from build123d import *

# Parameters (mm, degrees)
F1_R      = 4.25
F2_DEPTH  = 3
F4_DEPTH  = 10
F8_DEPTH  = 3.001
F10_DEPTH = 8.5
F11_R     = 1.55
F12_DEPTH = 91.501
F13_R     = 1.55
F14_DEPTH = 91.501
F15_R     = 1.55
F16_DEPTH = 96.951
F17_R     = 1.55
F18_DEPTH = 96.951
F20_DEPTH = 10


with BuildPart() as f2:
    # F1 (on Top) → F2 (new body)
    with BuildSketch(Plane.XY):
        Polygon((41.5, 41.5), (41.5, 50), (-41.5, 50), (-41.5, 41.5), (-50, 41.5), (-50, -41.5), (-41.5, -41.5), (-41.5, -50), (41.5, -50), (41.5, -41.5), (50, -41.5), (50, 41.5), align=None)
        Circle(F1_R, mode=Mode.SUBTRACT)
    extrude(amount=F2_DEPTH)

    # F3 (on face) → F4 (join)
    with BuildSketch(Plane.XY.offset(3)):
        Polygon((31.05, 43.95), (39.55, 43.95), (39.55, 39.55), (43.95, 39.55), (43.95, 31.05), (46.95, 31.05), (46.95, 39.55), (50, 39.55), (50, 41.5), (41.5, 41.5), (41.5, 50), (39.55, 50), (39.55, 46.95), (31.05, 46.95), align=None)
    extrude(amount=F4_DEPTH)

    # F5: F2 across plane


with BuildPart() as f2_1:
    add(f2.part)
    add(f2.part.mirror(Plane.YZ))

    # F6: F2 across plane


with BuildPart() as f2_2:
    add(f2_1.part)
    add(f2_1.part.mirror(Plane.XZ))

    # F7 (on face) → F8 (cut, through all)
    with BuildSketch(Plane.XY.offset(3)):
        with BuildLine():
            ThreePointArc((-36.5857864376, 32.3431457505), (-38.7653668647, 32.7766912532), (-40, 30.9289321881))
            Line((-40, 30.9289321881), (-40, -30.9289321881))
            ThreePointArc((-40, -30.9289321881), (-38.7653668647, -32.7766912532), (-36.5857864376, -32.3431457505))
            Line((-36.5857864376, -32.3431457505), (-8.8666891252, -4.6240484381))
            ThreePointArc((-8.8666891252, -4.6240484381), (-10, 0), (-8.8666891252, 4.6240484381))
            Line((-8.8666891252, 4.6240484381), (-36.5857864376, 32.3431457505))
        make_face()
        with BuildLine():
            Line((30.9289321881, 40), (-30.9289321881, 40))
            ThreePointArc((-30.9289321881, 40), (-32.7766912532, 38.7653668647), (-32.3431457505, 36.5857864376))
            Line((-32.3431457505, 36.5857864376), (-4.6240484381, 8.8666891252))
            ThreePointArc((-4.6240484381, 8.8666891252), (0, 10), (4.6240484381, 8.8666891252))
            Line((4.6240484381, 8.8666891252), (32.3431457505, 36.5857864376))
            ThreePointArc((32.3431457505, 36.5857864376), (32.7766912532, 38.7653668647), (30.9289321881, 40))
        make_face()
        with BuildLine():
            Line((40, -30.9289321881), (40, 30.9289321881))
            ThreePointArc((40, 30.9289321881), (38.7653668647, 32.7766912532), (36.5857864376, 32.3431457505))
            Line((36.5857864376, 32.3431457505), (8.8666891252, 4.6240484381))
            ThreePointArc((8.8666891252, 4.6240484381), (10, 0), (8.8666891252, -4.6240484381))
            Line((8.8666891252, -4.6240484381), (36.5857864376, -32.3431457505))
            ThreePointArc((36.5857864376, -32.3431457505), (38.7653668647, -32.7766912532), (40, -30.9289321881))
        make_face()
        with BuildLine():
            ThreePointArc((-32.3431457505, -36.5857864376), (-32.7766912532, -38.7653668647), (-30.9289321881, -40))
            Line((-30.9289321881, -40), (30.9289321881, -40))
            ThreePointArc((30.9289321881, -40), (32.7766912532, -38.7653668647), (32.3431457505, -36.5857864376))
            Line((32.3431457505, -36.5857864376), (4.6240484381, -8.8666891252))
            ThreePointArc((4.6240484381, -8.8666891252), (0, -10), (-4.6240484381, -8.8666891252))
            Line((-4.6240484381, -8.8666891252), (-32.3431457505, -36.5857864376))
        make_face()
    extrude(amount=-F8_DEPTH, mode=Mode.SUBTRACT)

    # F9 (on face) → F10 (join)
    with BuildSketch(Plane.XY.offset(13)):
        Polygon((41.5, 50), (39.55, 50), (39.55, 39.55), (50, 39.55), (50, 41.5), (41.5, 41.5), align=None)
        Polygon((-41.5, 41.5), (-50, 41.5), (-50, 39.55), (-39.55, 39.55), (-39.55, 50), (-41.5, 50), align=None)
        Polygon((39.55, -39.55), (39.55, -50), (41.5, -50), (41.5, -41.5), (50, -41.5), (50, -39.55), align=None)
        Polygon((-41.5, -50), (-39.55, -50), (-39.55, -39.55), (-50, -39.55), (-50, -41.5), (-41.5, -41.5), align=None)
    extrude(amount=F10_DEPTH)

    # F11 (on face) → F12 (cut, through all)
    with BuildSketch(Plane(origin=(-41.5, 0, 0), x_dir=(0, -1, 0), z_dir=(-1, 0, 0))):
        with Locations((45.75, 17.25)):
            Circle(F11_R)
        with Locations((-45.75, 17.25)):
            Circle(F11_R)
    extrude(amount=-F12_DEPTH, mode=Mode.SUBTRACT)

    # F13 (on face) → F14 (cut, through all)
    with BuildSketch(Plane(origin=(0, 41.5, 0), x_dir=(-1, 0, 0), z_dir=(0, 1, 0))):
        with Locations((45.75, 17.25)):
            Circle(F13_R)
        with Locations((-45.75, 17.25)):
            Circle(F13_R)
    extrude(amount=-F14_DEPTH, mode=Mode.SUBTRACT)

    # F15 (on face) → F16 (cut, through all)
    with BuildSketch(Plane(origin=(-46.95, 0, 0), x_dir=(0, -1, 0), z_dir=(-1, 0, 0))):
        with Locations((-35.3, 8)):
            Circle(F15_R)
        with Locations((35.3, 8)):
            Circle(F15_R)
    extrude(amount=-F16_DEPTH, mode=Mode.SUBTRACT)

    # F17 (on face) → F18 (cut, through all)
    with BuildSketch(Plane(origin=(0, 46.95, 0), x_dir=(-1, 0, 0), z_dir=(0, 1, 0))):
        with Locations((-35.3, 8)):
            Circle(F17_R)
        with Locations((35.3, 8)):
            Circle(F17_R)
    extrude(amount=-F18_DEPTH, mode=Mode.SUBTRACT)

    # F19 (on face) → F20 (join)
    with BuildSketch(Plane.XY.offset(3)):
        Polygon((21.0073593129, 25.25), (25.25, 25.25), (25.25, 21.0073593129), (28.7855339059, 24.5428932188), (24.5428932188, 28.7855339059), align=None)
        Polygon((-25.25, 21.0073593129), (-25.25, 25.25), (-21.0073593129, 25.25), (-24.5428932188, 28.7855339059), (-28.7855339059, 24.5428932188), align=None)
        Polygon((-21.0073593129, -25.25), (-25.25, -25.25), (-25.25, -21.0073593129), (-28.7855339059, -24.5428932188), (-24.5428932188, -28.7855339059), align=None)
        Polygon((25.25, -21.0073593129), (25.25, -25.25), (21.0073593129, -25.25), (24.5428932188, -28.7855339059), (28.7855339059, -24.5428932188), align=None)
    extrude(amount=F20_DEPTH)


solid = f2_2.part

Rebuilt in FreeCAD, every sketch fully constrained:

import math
import FreeCAD as App
import Part
import Sketcher

doc = App.newDocument("Part")
body = doc.addObject("PartDesign::Body", "Body")

sketch1 = doc.addObject("Sketcher::SketchObject", "Sketch")
body.addObject(sketch1)
sketch1.AttachmentSupport = (doc.XY_Plane, [""])
sketch1.MapMode = "FlatFace"
sketch1.addGeometry(Part.LineSegment(App.Vector(41.5, 41.5, 0), App.Vector(41.5, 50, 0)), False)
sketch1.addGeometry(Part.LineSegment(App.Vector(41.5, 50, 0), App.Vector(-41.5, 50, 0)), False)
sketch1.addGeometry(Part.LineSegment(App.Vector(-41.5, 50, 0), App.Vector(-41.5, 41.5, 0)), False)
sketch1.addGeometry(Part.LineSegment(App.Vector(-41.5, 41.5, 0), App.Vector(-50, 41.5, 0)), False)
sketch1.addGeometry(Part.LineSegment(App.Vector(-50, 41.5, 0), App.Vector(-50, -41.5, 0)), False)
sketch1.addGeometry(Part.LineSegment(App.Vector(-50, -41.5, 0), App.Vector(-41.5, -41.5, 0)), False)
sketch1.addGeometry(Part.LineSegment(App.Vector(-41.5, -41.5, 0), App.Vector(-41.5, -50, 0)), False)
sketch1.addGeometry(Part.LineSegment(App.Vector(-41.5, -50, 0), App.Vector(41.5, -50, 0)), False)
sketch1.addGeometry(Part.LineSegment(App.Vector(41.5, -50, 0), App.Vector(41.5, -41.5, 0)), False)
sketch1.addGeometry(Part.LineSegment(App.Vector(41.5, -41.5, 0), App.Vector(50, -41.5, 0)), False)
sketch1.addGeometry(Part.LineSegment(App.Vector(50, -41.5, 0), App.Vector(50, 41.5, 0)), False)
sketch1.addGeometry(Part.LineSegment(App.Vector(50, 41.5, 0), App.Vector(41.5, 41.5, 0)), False)
sketch1.addGeometry(Part.Circle(App.Vector(0, 0, 0), App.Vector(0, 0, 1), 4.25), False)
sketch1.addConstraint(Sketcher.Constraint("Coincident", 0, 2, 1, 1))
sketch1.addConstraint(Sketcher.Constraint("Coincident", 1, 2, 2, 1))
sketch1.addConstraint(Sketcher.Constraint("Coincident", 2, 2, 3, 1))
sketch1.addConstraint(Sketcher.Constraint("Coincident", 3, 2, 4, 1))
sketch1.addConstraint(Sketcher.Constraint("Coincident", 4, 2, 5, 1))
sketch1.addConstraint(Sketcher.Constraint("Coincident", 5, 2, 6, 1))
sketch1.addConstraint(Sketcher.Constraint("Coincident", 6, 2, 7, 1))
sketch1.addConstraint(Sketcher.Constraint("Coincident", 7, 2, 8, 1))
sketch1.addConstraint(Sketcher.Constraint("Coincident", 8, 2, 9, 1))
sketch1.addConstraint(Sketcher.Constraint("Coincident", 9, 2, 10, 1))
sketch1.addConstraint(Sketcher.Constraint("Coincident", 10, 2, 11, 1))
sketch1.addConstraint(Sketcher.Constraint("Coincident", 11, 2, 0, 1))
sketch1.addConstraint(Sketcher.Constraint("Vertical", 0))
sketch1.addConstraint(Sketcher.Constraint("Horizontal", 1))
sketch1.addConstraint(Sketcher.Constraint("Vertical", 2))
sketch1.addConstraint(Sketcher.Constraint("Horizontal", 3))
sketch1.addConstraint(Sketcher.Constraint("Vertical", 4))
sketch1.addConstraint(Sketcher.Constraint("Horizontal", 5))
sketch1.addConstraint(Sketcher.Constraint("Vertical", 6))
sketch1.addConstraint(Sketcher.Constraint("Horizontal", 7))
sketch1.addConstraint(Sketcher.Constraint("Vertical", 8))
sketch1.addConstraint(Sketcher.Constraint("Horizontal", 9))
sketch1.addConstraint(Sketcher.Constraint("Vertical", 10))
sketch1.addConstraint(Sketcher.Constraint("Horizontal", 11))
sketch1.addConstraint(Sketcher.Constraint("Coincident", 12, 3, -1, 1))
sketch1.addConstraint(Sketcher.Constraint("Symmetric", 0, 2, 6, 2, -1, 1))
sketch1.addConstraint(Sketcher.Constraint("Symmetric", 2, 2, 8, 2, -1, 1))
sketch1.addConstraint(Sketcher.Constraint("Symmetric", 4, 2, 10, 2, -1, 1))
sketch1.addConstraint(Sketcher.Constraint("Symmetric", 5, 2, 8, 2, -2))
sketch1.addConstraint(Sketcher.Constraint("Equal", 11, 0))
sketch1.addConstraint(Sketcher.Constraint("Equal", 7, 4))
sketch1.addConstraint(Sketcher.Constraint("Diameter", 12, 8.5))
sketch1.addConstraint(Sketcher.Constraint("DistanceX", 1, 2, 1, 1, 83.0))
sketch1.addConstraint(Sketcher.Constraint("DistanceX", 3, 2, 3, 1, 8.5))
pad1 = doc.addObject("PartDesign::Pad", "Pad")
body.addObject(pad1)
pad1.Profile = sketch1
pad1.Length = 3

sketch2 = doc.addObject("Sketcher::SketchObject", "Sketch001")
body.addObject(sketch2)
sketch2.AttachmentSupport = (doc.XY_Plane, [""])
sketch2.MapMode = "FlatFace"
sketch2.AttachmentOffset = App.Placement(App.Vector(0, 0, 3), App.Rotation())
sketch2.addGeometry(Part.LineSegment(App.Vector(31.05, 43.95, 0), App.Vector(39.55, 43.95, 0)), False)
sketch2.addGeometry(Part.LineSegment(App.Vector(39.55, 43.95, 0), App.Vector(39.55, 39.55, 0)), False)
sketch2.addGeometry(Part.LineSegment(App.Vector(39.55, 39.55, 0), App.Vector(43.95, 39.55, 0)), False)
sketch2.addGeometry(Part.LineSegment(App.Vector(43.95, 39.55, 0), App.Vector(43.95, 31.05, 0)), False)
sketch2.addGeometry(Part.LineSegment(App.Vector(43.95, 31.05, 0), App.Vector(46.95, 31.05, 0)), False)
sketch2.addGeometry(Part.LineSegment(App.Vector(46.95, 31.05, 0), App.Vector(46.95, 39.55, 0)), False)
sketch2.addGeometry(Part.LineSegment(App.Vector(46.95, 39.55, 0), App.Vector(50, 39.55, 0)), False)
sketch2.addGeometry(Part.LineSegment(App.Vector(50, 39.55, 0), App.Vector(50, 41.5, 0)), False)
sketch2.addGeometry(Part.LineSegment(App.Vector(50, 41.5, 0), App.Vector(41.5, 41.5, 0)), False)
sketch2.addGeometry(Part.LineSegment(App.Vector(41.5, 41.5, 0), App.Vector(41.5, 50, 0)), False)
sketch2.addGeometry(Part.LineSegment(App.Vector(41.5, 50, 0), App.Vector(39.55, 50, 0)), False)
sketch2.addGeometry(Part.LineSegment(App.Vector(39.55, 50, 0), App.Vector(39.55, 46.95, 0)), False)
sketch2.addGeometry(Part.LineSegment(App.Vector(39.55, 46.95, 0), App.Vector(31.05, 46.95, 0)), False)
sketch2.addGeometry(Part.LineSegment(App.Vector(31.05, 46.95, 0), App.Vector(31.05, 43.95, 0)), False)
sketch2.addConstraint(Sketcher.Constraint("Coincident", 0, 2, 1, 1))
sketch2.addConstraint(Sketcher.Constraint("Coincident", 1, 2, 2, 1))
sketch2.addConstraint(Sketcher.Constraint("Coincident", 2, 2, 3, 1))
sketch2.addConstraint(Sketcher.Constraint("Coincident", 3, 2, 4, 1))
sketch2.addConstraint(Sketcher.Constraint("Coincident", 4, 2, 5, 1))
sketch2.addConstraint(Sketcher.Constraint("Coincident", 5, 2, 6, 1))
sketch2.addConstraint(Sketcher.Constraint("Coincident", 6, 2, 7, 1))
sketch2.addConstraint(Sketcher.Constraint("Coincident", 7, 2, 8, 1))
sketch2.addConstraint(Sketcher.Constraint("Coincident", 8, 2, 9, 1))
sketch2.addConstraint(Sketcher.Constraint("Coincident", 9, 2, 10, 1))
sketch2.addConstraint(Sketcher.Constraint("Coincident", 10, 2, 11, 1))
sketch2.addConstraint(Sketcher.Constraint("Coincident", 11, 2, 12, 1))
sketch2.addConstraint(Sketcher.Constraint("Coincident", 12, 2, 13, 1))
sketch2.addConstraint(Sketcher.Constraint("Coincident", 13, 2, 0, 1))
sketch2.addConstraint(Sketcher.Constraint("Horizontal", 0))
sketch2.addConstraint(Sketcher.Constraint("Vertical", 1))
sketch2.addConstraint(Sketcher.Constraint("Horizontal", 2))
sketch2.addConstraint(Sketcher.Constraint("Vertical", 3))
sketch2.addConstraint(Sketcher.Constraint("Horizontal", 4))
sketch2.addConstraint(Sketcher.Constraint("Vertical", 5))
sketch2.addConstraint(Sketcher.Constraint("Horizontal", 6))
sketch2.addConstraint(Sketcher.Constraint("Vertical", 7))
sketch2.addConstraint(Sketcher.Constraint("Horizontal", 8))
sketch2.addConstraint(Sketcher.Constraint("Vertical", 9))
sketch2.addConstraint(Sketcher.Constraint("Horizontal", 10))
sketch2.addConstraint(Sketcher.Constraint("Vertical", 11))
sketch2.addConstraint(Sketcher.Constraint("Horizontal", 12))
sketch2.addConstraint(Sketcher.Constraint("Vertical", 13))
sketch2.addConstraint(Sketcher.Constraint("Horizontal", 2, 2, 5, 2))
sketch2.addConstraint(Sketcher.Constraint("Vertical", 1, 2, 10, 2))
sketch2.addConstraint(Sketcher.Constraint("Equal", 0, 8))
sketch2.addConstraint(Sketcher.Constraint("Equal", 2, 1))
sketch2.addConstraint(Sketcher.Constraint("Equal", 12, 3))
sketch2.addConstraint(Sketcher.Constraint("Equal", 10, 7))
sketch2.addConstraint(Sketcher.Constraint("Equal", 5, 9))
sketch2.addConstraint(Sketcher.Constraint("Equal", 6, 11))
sketch2.addConstraint(Sketcher.Constraint("DistanceX", 4, 1, 4, 2, 3.0))
sketch2.addConstraint(Sketcher.Constraint("DistanceX", 0, 1, 0, 2, 8.5))
sketch2.addConstraint(Sketcher.Constraint("DistanceX", 2, 1, 2, 2, 4.4))
sketch2.addConstraint(Sketcher.Constraint("DistanceX", -1, 1, 6, 2, 50.0))
sketch2.addConstraint(Sketcher.Constraint("DistanceY", -1, 1, 9, 2, 50.0))
sketch2.addConstraint(Sketcher.Constraint("DistanceX", 6, 1, 6, 2, 3.05))
pad2 = doc.addObject("PartDesign::Pad", "Pad001")
body.addObject(pad2)
pad2.Profile = sketch2
pad2.Length = 10
body2 = doc.addObject("PartDesign::Body", "Body001")
doc.recompute()

body2.BaseFeature = body
doc.recompute()

mirroring = doc.addObject("Part::Mirroring", "Mirroring")
mirroring.Source = body
mirroring.Base = App.Vector(0, 0, 0)
mirroring.Normal = App.Vector(1, 0, 0)
body3 = doc.addObject("PartDesign::Body", "Body002")
body3.BaseFeature = mirroring
boolean = doc.addObject("PartDesign::Boolean", "Boolean")
body2.addObject(boolean)
boolean.Type = "Fuse"
boolean.addObjects([body3])
doc.recompute()
body4 = doc.addObject("PartDesign::Body", "Body003")
doc.recompute()

body4.BaseFeature = body2
doc.recompute()

mirroring2 = doc.addObject("Part::Mirroring", "Mirroring001")
mirroring2.Source = body2
mirroring2.Base = App.Vector(0, 0, 0)
mirroring2.Normal = App.Vector(0, -1, 0)
body5 = doc.addObject("PartDesign::Body", "Body004")
body5.BaseFeature = mirroring2
boolean2 = doc.addObject("PartDesign::Boolean", "Boolean001")
body4.addObject(boolean2)
boolean2.Type = "Fuse"
boolean2.addObjects([body5])
doc.recompute()

sketch3 = doc.addObject("Sketcher::SketchObject", "Sketch002")
body4.addObject(sketch3)
sketch3.AttachmentSupport = (doc.getObject("XY_Plane003"), [""])
sketch3.MapMode = "FlatFace"
sketch3.AttachmentOffset = App.Placement(App.Vector(0, 0, 3), App.Rotation())
sketch3.addGeometry(Part.ArcOfCircle(Part.Circle(App.Vector(-38, 30.928932, 0), App.Vector(0, 0, 1), 2), math.radians(45), math.radians(180)), False)
sketch3.addGeometry(Part.LineSegment(App.Vector(-40, 30.928932, 0), App.Vector(-40, -30.928932, 0)), False)
sketch3.addGeometry(Part.ArcOfCircle(Part.Circle(App.Vector(-38, -30.928932, 0), App.Vector(0, 0, 1), 2), math.radians(180), math.radians(315)), False)
sketch3.addGeometry(Part.LineSegment(App.Vector(-36.585786, -32.343146, 0), App.Vector(-8.866689, -4.624048, 0)), False)
sketch3.addGeometry(Part.ArcOfCircle(Part.Circle(App.Vector(0, 0, 0), App.Vector(0, 0, 1), 10), math.radians(152.457603), math.radians(207.542397)), False)
sketch3.addGeometry(Part.LineSegment(App.Vector(-8.866689, 4.624048, 0), App.Vector(-36.585786, 32.343146, 0)), False)
sketch3.addGeometry(Part.LineSegment(App.Vector(30.928932, 40, 0), App.Vector(-30.928932, 40, 0)), False)
sketch3.addGeometry(Part.ArcOfCircle(Part.Circle(App.Vector(-30.928932, 38, 0), App.Vector(0, 0, 1), 2), math.radians(90), math.radians(225)), False)
sketch3.addGeometry(Part.LineSegment(App.Vector(-32.343146, 36.585786, 0), App.Vector(-4.624048, 8.866689, 0)), False)
sketch3.addGeometry(Part.ArcOfCircle(Part.Circle(App.Vector(0, 0, 0), App.Vector(0, 0, 1), 10), math.radians(62.457603), math.radians(117.542397)), False)
sketch3.addGeometry(Part.LineSegment(App.Vector(4.624048, 8.866689, 0), App.Vector(32.343146, 36.585786, 0)), False)
sketch3.addGeometry(Part.ArcOfCircle(Part.Circle(App.Vector(30.928932, 38, 0), App.Vector(0, 0, 1), 2), math.radians(-45), math.radians(90)), False)
sketch3.addGeometry(Part.LineSegment(App.Vector(40, -30.928932, 0), App.Vector(40, 30.928932, 0)), False)
sketch3.addGeometry(Part.ArcOfCircle(Part.Circle(App.Vector(38, 30.928932, 0), App.Vector(0, 0, 1), 2), math.radians(0), math.radians(135)), False)
sketch3.addGeometry(Part.LineSegment(App.Vector(36.585786, 32.343146, 0), App.Vector(8.866689, 4.624048, 0)), False)
sketch3.addGeometry(Part.ArcOfCircle(Part.Circle(App.Vector(0, 0, 0), App.Vector(0, 0, 1), 10), math.radians(-27.542397), math.radians(27.542397)), False)
sketch3.addGeometry(Part.LineSegment(App.Vector(8.866689, -4.624048, 0), App.Vector(36.585786, -32.343146, 0)), False)
sketch3.addGeometry(Part.ArcOfCircle(Part.Circle(App.Vector(38, -30.928932, 0), App.Vector(0, 0, 1), 2), math.radians(-135), math.radians(0)), False)
sketch3.addGeometry(Part.ArcOfCircle(Part.Circle(App.Vector(-30.928932, -38, 0), App.Vector(0, 0, 1), 2), math.radians(135), math.radians(270)), False)
sketch3.addGeometry(Part.LineSegment(App.Vector(-30.928932, -40, 0), App.Vector(30.928932, -40, 0)), False)
sketch3.addGeometry(Part.ArcOfCircle(Part.Circle(App.Vector(30.928932, -38, 0), App.Vector(0, 0, 1), 2), math.radians(-90), math.radians(45)), False)
sketch3.addGeometry(Part.LineSegment(App.Vector(32.343146, -36.585786, 0), App.Vector(4.624048, -8.866689, 0)), False)
sketch3.addGeometry(Part.ArcOfCircle(Part.Circle(App.Vector(0, 0, 0), App.Vector(0, 0, 1), 10), math.radians(-117.542397), math.radians(-62.457603)), False)
sketch3.addGeometry(Part.LineSegment(App.Vector(-4.624048, -8.866689, 0), App.Vector(-32.343146, -36.585786, 0)), False)
sketch3.addConstraint(Sketcher.Constraint("Tangent", 0, 2, 1, 1))
sketch3.addConstraint(Sketcher.Constraint("Tangent", 1, 2, 2, 1))
sketch3.addConstraint(Sketcher.Constraint("Tangent", 2, 2, 3, 1))
sketch3.addConstraint(Sketcher.Constraint("Coincident", 3, 2, 4, 2))
sketch3.addConstraint(Sketcher.Constraint("Coincident", 4, 1, 5, 1))
sketch3.addConstraint(Sketcher.Constraint("Tangent", 5, 2, 0, 1))
sketch3.addConstraint(Sketcher.Constraint("Tangent", 6, 2, 7, 1))
sketch3.addConstraint(Sketcher.Constraint("Tangent", 7, 2, 8, 1))
sketch3.addConstraint(Sketcher.Constraint("Coincident", 8, 2, 9, 2))
sketch3.addConstraint(Sketcher.Constraint("Coincident", 9, 1, 10, 1))
sketch3.addConstraint(Sketcher.Constraint("Tangent", 10, 2, 11, 1))
sketch3.addConstraint(Sketcher.Constraint("Tangent", 11, 2, 6, 1))
sketch3.addConstraint(Sketcher.Constraint("Tangent", 12, 2, 13, 1))
sketch3.addConstraint(Sketcher.Constraint("Tangent", 13, 2, 14, 1))
sketch3.addConstraint(Sketcher.Constraint("Coincident", 14, 2, 15, 2))
sketch3.addConstraint(Sketcher.Constraint("Coincident", 15, 1, 16, 1))
sketch3.addConstraint(Sketcher.Constraint("Tangent", 16, 2, 17, 1))
sketch3.addConstraint(Sketcher.Constraint("Tangent", 17, 2, 12, 1))
sketch3.addConstraint(Sketcher.Constraint("Tangent", 18, 2, 19, 1))
sketch3.addConstraint(Sketcher.Constraint("Tangent", 19, 2, 20, 1))
sketch3.addConstraint(Sketcher.Constraint("Tangent", 20, 2, 21, 1))
sketch3.addConstraint(Sketcher.Constraint("Coincident", 21, 2, 22, 2))
sketch3.addConstraint(Sketcher.Constraint("Coincident", 22, 1, 23, 1))
sketch3.addConstraint(Sketcher.Constraint("Tangent", 23, 2, 18, 1))
sketch3.addConstraint(Sketcher.Constraint("Vertical", 1))
sketch3.addConstraint(Sketcher.Constraint("Horizontal", 6))
sketch3.addConstraint(Sketcher.Constraint("Vertical", 12))
sketch3.addConstraint(Sketcher.Constraint("Horizontal", 19))
sketch3.addConstraint(Sketcher.Constraint("Coincident", 4, 3, -1, 1))
sketch3.addConstraint(Sketcher.Constraint("Coincident", 9, 3, -1, 1))
sketch3.addConstraint(Sketcher.Constraint("Coincident", 15, 3, -1, 1))
sketch3.addConstraint(Sketcher.Constraint("Coincident", 22, 3, -1, 1))
sketch3.addConstraint(Sketcher.Constraint("Equal", 0, 2))
sketch3.addConstraint(Sketcher.Constraint("Equal", 2, 7))
sketch3.addConstraint(Sketcher.Constraint("Equal", 4, 9))
sketch3.addConstraint(Sketcher.Constraint("Equal", 7, 11))
sketch3.addConstraint(Sketcher.Constraint("Equal", 11, 13))
sketch3.addConstraint(Sketcher.Constraint("Equal", 9, 15))
sketch3.addConstraint(Sketcher.Constraint("Equal", 13, 17))
sketch3.addConstraint(Sketcher.Constraint("Equal", 17, 18))
sketch3.addConstraint(Sketcher.Constraint("Equal", 18, 20))
sketch3.addConstraint(Sketcher.Constraint("Equal", 15, 22))
sketch3.addConstraint(Sketcher.Constraint("Symmetric", 2, 3, 13, 3, -1, 1))
sketch3.addConstraint(Sketcher.Constraint("Symmetric", 11, 3, 18, 3, -1, 1))
sketch3.addConstraint(Sketcher.Constraint("Symmetric", 5, 2, 16, 2, -1, 1))
sketch3.addConstraint(Sketcher.Constraint("Symmetric", 7, 2, 20, 2, -1, 1))
sketch3.addConstraint(Sketcher.Constraint("Symmetric", 7, 2, 10, 2, -2))
sketch3.addConstraint(Sketcher.Constraint("Symmetric", 5, 2, 13, 2, -2))
sketch3.addConstraint(Sketcher.Constraint("Perpendicular", 3, 5))
sketch3.addConstraint(Sketcher.Constraint("Parallel", 5, 8))
sketch3.addConstraint(Sketcher.Constraint("Perpendicular", 8, 10))
sketch3.addConstraint(Sketcher.Constraint("Perpendicular", 21, 23))
sketch3.addConstraint(Sketcher.Constraint("Equal", 19, 1))
sketch3.addConstraint(Sketcher.Constraint("Equal", 5, 8))
sketch3.addConstraint(Sketcher.Constraint("Radius", 0, 2.0))
sketch3.addConstraint(Sketcher.Constraint("Radius", 4, 10.0))
sketch3.addConstraint(Sketcher.Constraint("DistanceX", 0, 3, -1, 1, 38.0))
sketch3.addConstraint(Sketcher.Constraint("DistanceX", 6, 2, 6, 1, 61.857864))
pocket1 = doc.addObject("PartDesign::Pocket", "Pocket")
body4.addObject(pocket1)
pocket1.Profile = sketch3
pocket1.Type = "ThroughAll"

sketch4 = doc.addObject("Sketcher::SketchObject", "Sketch003")
body4.addObject(sketch4)
sketch4.AttachmentSupport = (doc.getObject("XY_Plane003"), [""])
sketch4.MapMode = "FlatFace"
sketch4.AttachmentOffset = App.Placement(App.Vector(0, 0, 13), App.Rotation())
sketch4.addGeometry(Part.LineSegment(App.Vector(41.5, 50, 0), App.Vector(39.55, 50, 0)), False)
sketch4.addGeometry(Part.LineSegment(App.Vector(39.55, 50, 0), App.Vector(39.55, 39.55, 0)), False)
sketch4.addGeometry(Part.LineSegment(App.Vector(39.55, 39.55, 0), App.Vector(50, 39.55, 0)), False)
sketch4.addGeometry(Part.LineSegment(App.Vector(50, 39.55, 0), App.Vector(50, 41.5, 0)), False)
sketch4.addGeometry(Part.LineSegment(App.Vector(50, 41.5, 0), App.Vector(41.5, 41.5, 0)), False)
sketch4.addGeometry(Part.LineSegment(App.Vector(41.5, 41.5, 0), App.Vector(41.5, 50, 0)), False)
sketch4.addGeometry(Part.LineSegment(App.Vector(-41.5, 41.5, 0), App.Vector(-50, 41.5, 0)), False)
sketch4.addGeometry(Part.LineSegment(App.Vector(-50, 41.5, 0), App.Vector(-50, 39.55, 0)), False)
sketch4.addGeometry(Part.LineSegment(App.Vector(-50, 39.55, 0), App.Vector(-39.55, 39.55, 0)), False)
sketch4.addGeometry(Part.LineSegment(App.Vector(-39.55, 39.55, 0), App.Vector(-39.55, 50, 0)), False)
sketch4.addGeometry(Part.LineSegment(App.Vector(-39.55, 50, 0), App.Vector(-41.5, 50, 0)), False)
sketch4.addGeometry(Part.LineSegment(App.Vector(-41.5, 50, 0), App.Vector(-41.5, 41.5, 0)), False)
sketch4.addGeometry(Part.LineSegment(App.Vector(39.55, -39.55, 0), App.Vector(39.55, -50, 0)), False)
sketch4.addGeometry(Part.LineSegment(App.Vector(39.55, -50, 0), App.Vector(41.5, -50, 0)), False)
sketch4.addGeometry(Part.LineSegment(App.Vector(41.5, -50, 0), App.Vector(41.5, -41.5, 0)), False)
sketch4.addGeometry(Part.LineSegment(App.Vector(41.5, -41.5, 0), App.Vector(50, -41.5, 0)), False)
sketch4.addGeometry(Part.LineSegment(App.Vector(50, -41.5, 0), App.Vector(50, -39.55, 0)), False)
sketch4.addGeometry(Part.LineSegment(App.Vector(50, -39.55, 0), App.Vector(39.55, -39.55, 0)), False)
sketch4.addGeometry(Part.LineSegment(App.Vector(-41.5, -50, 0), App.Vector(-39.55, -50, 0)), False)
sketch4.addGeometry(Part.LineSegment(App.Vector(-39.55, -50, 0), App.Vector(-39.55, -39.55, 0)), False)
sketch4.addGeometry(Part.LineSegment(App.Vector(-39.55, -39.55, 0), App.Vector(-50, -39.55, 0)), False)
sketch4.addGeometry(Part.LineSegment(App.Vector(-50, -39.55, 0), App.Vector(-50, -41.5, 0)), False)
sketch4.addGeometry(Part.LineSegment(App.Vector(-50, -41.5, 0), App.Vector(-41.5, -41.5, 0)), False)
sketch4.addGeometry(Part.LineSegment(App.Vector(-41.5, -41.5, 0), App.Vector(-41.5, -50, 0)), False)
sketch4.addConstraint(Sketcher.Constraint("Coincident", 0, 2, 1, 1))
sketch4.addConstraint(Sketcher.Constraint("Coincident", 1, 2, 2, 1))
sketch4.addConstraint(Sketcher.Constraint("Coincident", 2, 2, 3, 1))
sketch4.addConstraint(Sketcher.Constraint("Coincident", 3, 2, 4, 1))
sketch4.addConstraint(Sketcher.Constraint("Coincident", 4, 2, 5, 1))
sketch4.addConstraint(Sketcher.Constraint("Coincident", 5, 2, 0, 1))
sketch4.addConstraint(Sketcher.Constraint("Coincident", 6, 2, 7, 1))
sketch4.addConstraint(Sketcher.Constraint("Coincident", 7, 2, 8, 1))
sketch4.addConstraint(Sketcher.Constraint("Coincident", 8, 2, 9, 1))
sketch4.addConstraint(Sketcher.Constraint("Coincident", 9, 2, 10, 1))
sketch4.addConstraint(Sketcher.Constraint("Coincident", 10, 2, 11, 1))
sketch4.addConstraint(Sketcher.Constraint("Coincident", 11, 2, 6, 1))
sketch4.addConstraint(Sketcher.Constraint("Coincident", 12, 2, 13, 1))
sketch4.addConstraint(Sketcher.Constraint("Coincident", 13, 2, 14, 1))
sketch4.addConstraint(Sketcher.Constraint("Coincident", 14, 2, 15, 1))
sketch4.addConstraint(Sketcher.Constraint("Coincident", 15, 2, 16, 1))
sketch4.addConstraint(Sketcher.Constraint("Coincident", 16, 2, 17, 1))
sketch4.addConstraint(Sketcher.Constraint("Coincident", 17, 2, 12, 1))
sketch4.addConstraint(Sketcher.Constraint("Coincident", 18, 2, 19, 1))
sketch4.addConstraint(Sketcher.Constraint("Coincident", 19, 2, 20, 1))
sketch4.addConstraint(Sketcher.Constraint("Coincident", 20, 2, 21, 1))
sketch4.addConstraint(Sketcher.Constraint("Coincident", 21, 2, 22, 1))
sketch4.addConstraint(Sketcher.Constraint("Coincident", 22, 2, 23, 1))
sketch4.addConstraint(Sketcher.Constraint("Coincident", 23, 2, 18, 1))
sketch4.addConstraint(Sketcher.Constraint("Horizontal", 0))
sketch4.addConstraint(Sketcher.Constraint("Vertical", 1))
sketch4.addConstraint(Sketcher.Constraint("Horizontal", 2))
sketch4.addConstraint(Sketcher.Constraint("Vertical", 3))
sketch4.addConstraint(Sketcher.Constraint("Horizontal", 4))
sketch4.addConstraint(Sketcher.Constraint("Vertical", 5))
sketch4.addConstraint(Sketcher.Constraint("Horizontal", 6))
sketch4.addConstraint(Sketcher.Constraint("Vertical", 7))
sketch4.addConstraint(Sketcher.Constraint("Horizontal", 8))
sketch4.addConstraint(Sketcher.Constraint("Vertical", 9))
sketch4.addConstraint(Sketcher.Constraint("Horizontal", 10))
sketch4.addConstraint(Sketcher.Constraint("Vertical", 11))
sketch4.addConstraint(Sketcher.Constraint("Vertical", 12))
sketch4.addConstraint(Sketcher.Constraint("Horizontal", 13))
sketch4.addConstraint(Sketcher.Constraint("Vertical", 14))
sketch4.addConstraint(Sketcher.Constraint("Horizontal", 15))
sketch4.addConstraint(Sketcher.Constraint("Vertical", 16))
sketch4.addConstraint(Sketcher.Constraint("Horizontal", 17))
sketch4.addConstraint(Sketcher.Constraint("Horizontal", 18))
sketch4.addConstraint(Sketcher.Constraint("Vertical", 19))
sketch4.addConstraint(Sketcher.Constraint("Horizontal", 20))
sketch4.addConstraint(Sketcher.Constraint("Vertical", 21))
sketch4.addConstraint(Sketcher.Constraint("Horizontal", 22))
sketch4.addConstraint(Sketcher.Constraint("Vertical", 23))
sketch4.addConstraint(Sketcher.Constraint("Symmetric", 9, 2, 12, 2, -1, 1))
sketch4.addConstraint(Sketcher.Constraint("Symmetric", 11, 2, 14, 2, -1, 1))
sketch4.addConstraint(Sketcher.Constraint("Symmetric", 7, 2, 16, 2, -1, 1))
sketch4.addConstraint(Sketcher.Constraint("Symmetric", 0, 2, 18, 2, -1, 1))
sketch4.addConstraint(Sketcher.Constraint("Symmetric", 2, 2, 20, 2, -1, 1))
sketch4.addConstraint(Sketcher.Constraint("Symmetric", 4, 2, 22, 2, -1, 1))
sketch4.addConstraint(Sketcher.Constraint("Symmetric", 3, 2, 6, 2, -2))
sketch4.addConstraint(Sketcher.Constraint("Symmetric", 1, 2, 8, 2, -2))
sketch4.addConstraint(Sketcher.Constraint("Symmetric", 5, 2, 10, 2, -2))
sketch4.addConstraint(Sketcher.Constraint("Equal", 20, 1))
sketch4.addConstraint(Sketcher.Constraint("Equal", 18, 3))
sketch4.addConstraint(Sketcher.Constraint("DistanceX", 4, 2, 4, 1, 8.5))
sketch4.addConstraint(Sketcher.Constraint("DistanceY", -1, 1, 0, 2, 50.0))
sketch4.addConstraint(Sketcher.Constraint("DistanceX", -1, 1, 2, 2, 50.0))
sketch4.addConstraint(Sketcher.Constraint("DistanceX", 0, 2, 0, 1, 1.95))
pad3 = doc.addObject("PartDesign::Pad", "Pad002")
body4.addObject(pad3)
pad3.Profile = sketch4
pad3.Length = 8.5

sketch5 = doc.addObject("Sketcher::SketchObject", "Sketch004")
body4.addObject(sketch5)
sketch5.AttachmentSupport = (doc.getObject("YZ_Plane003"), [""])
sketch5.MapMode = "FlatFace"
sketch5.AttachmentOffset = App.Placement(App.Vector(0, 0, -41.5), App.Rotation())
sketch5.addGeometry(Part.Circle(App.Vector(-45.75, 17.25, 0), App.Vector(0, 0, 1), 1.55), False)
sketch5.addGeometry(Part.Circle(App.Vector(45.75, 17.25, 0), App.Vector(0, 0, 1), 1.55), False)
sketch5.addConstraint(Sketcher.Constraint("Equal", 0, 1))
sketch5.addConstraint(Sketcher.Constraint("Symmetric", 0, 3, 1, 3, -2))
sketch5.addConstraint(Sketcher.Constraint("Diameter", 0, 3.1))
sketch5.addConstraint(Sketcher.Constraint("DistanceX", 0, 3, 1, 3, 91.5))
sketch5.addConstraint(Sketcher.Constraint("DistanceY", -1, 1, 0, 3, 17.25))
pocket2 = doc.addObject("PartDesign::Pocket", "Pocket001")
body4.addObject(pocket2)
pocket2.Profile = sketch5
pocket2.Type = "ThroughAll"
pocket2.Reversed = True

sketch6 = doc.addObject("Sketcher::SketchObject", "Sketch005")
body4.addObject(sketch6)
sketch6.AttachmentSupport = (doc.getObject("XZ_Plane003"), [""])
sketch6.MapMode = "FlatFace"
sketch6.AttachmentOffset = App.Placement(App.Vector(0, 0, -41.5), App.Rotation())
sketch6.addGeometry(Part.Circle(App.Vector(-45.75, 17.25, 0), App.Vector(0, 0, 1), 1.55), False)
sketch6.addGeometry(Part.Circle(App.Vector(45.75, 17.25, 0), App.Vector(0, 0, 1), 1.55), False)
sketch6.addConstraint(Sketcher.Constraint("Equal", 0, 1))
sketch6.addConstraint(Sketcher.Constraint("Symmetric", 0, 3, 1, 3, -2))
sketch6.addConstraint(Sketcher.Constraint("Diameter", 0, 3.1))
sketch6.addConstraint(Sketcher.Constraint("DistanceX", 0, 3, 1, 3, 91.5))
sketch6.addConstraint(Sketcher.Constraint("DistanceY", -1, 1, 0, 3, 17.25))
pocket3 = doc.addObject("PartDesign::Pocket", "Pocket002")
body4.addObject(pocket3)
pocket3.Profile = sketch6
pocket3.Type = "ThroughAll"
pocket3.Reversed = True

sketch7 = doc.addObject("Sketcher::SketchObject", "Sketch006")
body4.addObject(sketch7)
sketch7.AttachmentSupport = (doc.getObject("YZ_Plane003"), [""])
sketch7.MapMode = "FlatFace"
sketch7.AttachmentOffset = App.Placement(App.Vector(0, 0, -46.95), App.Rotation())
sketch7.addGeometry(Part.Circle(App.Vector(35.3, 8, 0), App.Vector(0, 0, 1), 1.55), False)
sketch7.addGeometry(Part.Circle(App.Vector(-35.3, 8, 0), App.Vector(0, 0, 1), 1.55), False)
sketch7.addConstraint(Sketcher.Constraint("Equal", 0, 1))
sketch7.addConstraint(Sketcher.Constraint("Symmetric", 0, 3, 1, 3, -2))
sketch7.addConstraint(Sketcher.Constraint("Diameter", 0, 3.1))
sketch7.addConstraint(Sketcher.Constraint("DistanceY", -1, 1, 0, 3, 8.0))
sketch7.addConstraint(Sketcher.Constraint("DistanceX", -1, 1, 0, 3, 35.3))
pocket4 = doc.addObject("PartDesign::Pocket", "Pocket003")
body4.addObject(pocket4)
pocket4.Profile = sketch7
pocket4.Type = "ThroughAll"
pocket4.Reversed = True

sketch8 = doc.addObject("Sketcher::SketchObject", "Sketch007")
body4.addObject(sketch8)
sketch8.AttachmentSupport = (doc.getObject("XZ_Plane003"), [""])
sketch8.MapMode = "FlatFace"
sketch8.AttachmentOffset = App.Placement(App.Vector(0, 0, -46.95), App.Rotation())
sketch8.addGeometry(Part.Circle(App.Vector(35.3, 8, 0), App.Vector(0, 0, 1), 1.55), False)
sketch8.addGeometry(Part.Circle(App.Vector(-35.3, 8, 0), App.Vector(0, 0, 1), 1.55), False)
sketch8.addConstraint(Sketcher.Constraint("Equal", 0, 1))
sketch8.addConstraint(Sketcher.Constraint("Symmetric", 0, 3, 1, 3, -2))
sketch8.addConstraint(Sketcher.Constraint("Diameter", 0, 3.1))
sketch8.addConstraint(Sketcher.Constraint("DistanceY", -1, 1, 0, 3, 8.0))
sketch8.addConstraint(Sketcher.Constraint("DistanceX", -1, 1, 0, 3, 35.3))
pocket5 = doc.addObject("PartDesign::Pocket", "Pocket004")
body4.addObject(pocket5)
pocket5.Profile = sketch8
pocket5.Type = "ThroughAll"
pocket5.Reversed = True

sketch9 = doc.addObject("Sketcher::SketchObject", "Sketch008")
body4.addObject(sketch9)
sketch9.AttachmentSupport = (doc.getObject("XY_Plane003"), [""])
sketch9.MapMode = "FlatFace"
sketch9.AttachmentOffset = App.Placement(App.Vector(0, 0, 3), App.Rotation())
sketch9.addGeometry(Part.LineSegment(App.Vector(21.007359, 25.25, 0), App.Vector(25.25, 25.25, 0)), False)
sketch9.addGeometry(Part.LineSegment(App.Vector(25.25, 25.25, 0), App.Vector(25.25, 21.007359, 0)), False)
sketch9.addGeometry(Part.LineSegment(App.Vector(25.25, 21.007359, 0), App.Vector(28.785534, 24.542893, 0)), False)
sketch9.addGeometry(Part.LineSegment(App.Vector(28.785534, 24.542893, 0), App.Vector(24.542893, 28.785534, 0)), False)
sketch9.addGeometry(Part.LineSegment(App.Vector(24.542893, 28.785534, 0), App.Vector(21.007359, 25.25, 0)), False)
sketch9.addGeometry(Part.LineSegment(App.Vector(-25.25, 21.007359, 0), App.Vector(-25.25, 25.25, 0)), False)
sketch9.addGeometry(Part.LineSegment(App.Vector(-25.25, 25.25, 0), App.Vector(-21.007359, 25.25, 0)), False)
sketch9.addGeometry(Part.LineSegment(App.Vector(-21.007359, 25.25, 0), App.Vector(-24.542893, 28.785534, 0)), False)
sketch9.addGeometry(Part.LineSegment(App.Vector(-24.542893, 28.785534, 0), App.Vector(-28.785534, 24.542893, 0)), False)
sketch9.addGeometry(Part.LineSegment(App.Vector(-28.785534, 24.542893, 0), App.Vector(-25.25, 21.007359, 0)), False)
sketch9.addGeometry(Part.LineSegment(App.Vector(-21.007359, -25.25, 0), App.Vector(-25.25, -25.25, 0)), False)
sketch9.addGeometry(Part.LineSegment(App.Vector(-25.25, -25.25, 0), App.Vector(-25.25, -21.007359, 0)), False)
sketch9.addGeometry(Part.LineSegment(App.Vector(-25.25, -21.007359, 0), App.Vector(-28.785534, -24.542893, 0)), False)
sketch9.addGeometry(Part.LineSegment(App.Vector(-28.785534, -24.542893, 0), App.Vector(-24.542893, -28.785534, 0)), False)
sketch9.addGeometry(Part.LineSegment(App.Vector(-24.542893, -28.785534, 0), App.Vector(-21.007359, -25.25, 0)), False)
sketch9.addGeometry(Part.LineSegment(App.Vector(25.25, -21.007359, 0), App.Vector(25.25, -25.25, 0)), False)
sketch9.addGeometry(Part.LineSegment(App.Vector(25.25, -25.25, 0), App.Vector(21.007359, -25.25, 0)), False)
sketch9.addGeometry(Part.LineSegment(App.Vector(21.007359, -25.25, 0), App.Vector(24.542893, -28.785534, 0)), False)
sketch9.addGeometry(Part.LineSegment(App.Vector(24.542893, -28.785534, 0), App.Vector(28.785534, -24.542893, 0)), False)
sketch9.addGeometry(Part.LineSegment(App.Vector(28.785534, -24.542893, 0), App.Vector(25.25, -21.007359, 0)), False)
sketch9.addConstraint(Sketcher.Constraint("Coincident", 0, 2, 1, 1))
sketch9.addConstraint(Sketcher.Constraint("Coincident", 1, 2, 2, 1))
sketch9.addConstraint(Sketcher.Constraint("Coincident", 2, 2, 3, 1))
sketch9.addConstraint(Sketcher.Constraint("Coincident", 3, 2, 4, 1))
sketch9.addConstraint(Sketcher.Constraint("Coincident", 4, 2, 0, 1))
sketch9.addConstraint(Sketcher.Constraint("Coincident", 5, 2, 6, 1))
sketch9.addConstraint(Sketcher.Constraint("Coincident", 6, 2, 7, 1))
sketch9.addConstraint(Sketcher.Constraint("Coincident", 7, 2, 8, 1))
sketch9.addConstraint(Sketcher.Constraint("Coincident", 8, 2, 9, 1))
sketch9.addConstraint(Sketcher.Constraint("Coincident", 9, 2, 5, 1))
sketch9.addConstraint(Sketcher.Constraint("Coincident", 10, 2, 11, 1))
sketch9.addConstraint(Sketcher.Constraint("Coincident", 11, 2, 12, 1))
sketch9.addConstraint(Sketcher.Constraint("Coincident", 12, 2, 13, 1))
sketch9.addConstraint(Sketcher.Constraint("Coincident", 13, 2, 14, 1))
sketch9.addConstraint(Sketcher.Constraint("Coincident", 14, 2, 10, 1))
sketch9.addConstraint(Sketcher.Constraint("Coincident", 15, 2, 16, 1))
sketch9.addConstraint(Sketcher.Constraint("Coincident", 16, 2, 17, 1))
sketch9.addConstraint(Sketcher.Constraint("Coincident", 17, 2, 18, 1))
sketch9.addConstraint(Sketcher.Constraint("Coincident", 18, 2, 19, 1))
sketch9.addConstraint(Sketcher.Constraint("Coincident", 19, 2, 15, 1))
sketch9.addConstraint(Sketcher.Constraint("Horizontal", 0))
sketch9.addConstraint(Sketcher.Constraint("Vertical", 1))
sketch9.addConstraint(Sketcher.Constraint("Vertical", 5))
sketch9.addConstraint(Sketcher.Constraint("Horizontal", 6))
sketch9.addConstraint(Sketcher.Constraint("Horizontal", 10))
sketch9.addConstraint(Sketcher.Constraint("Vertical", 11))
sketch9.addConstraint(Sketcher.Constraint("Vertical", 15))
sketch9.addConstraint(Sketcher.Constraint("Horizontal", 16))
sketch9.addConstraint(Sketcher.Constraint("Symmetric", 0, 2, 10, 2, -1, 1))
sketch9.addConstraint(Sketcher.Constraint("Symmetric", 2, 2, 12, 2, -1, 1))
sketch9.addConstraint(Sketcher.Constraint("Symmetric", 3, 2, 13, 2, -1, 1))
sketch9.addConstraint(Sketcher.Constraint("Symmetric", 5, 2, 15, 2, -1, 1))
sketch9.addConstraint(Sketcher.Constraint("Symmetric", 7, 2, 17, 2, -1, 1))
sketch9.addConstraint(Sketcher.Constraint("Symmetric", 8, 2, 18, 2, -1, 1))
sketch9.addConstraint(Sketcher.Constraint("Symmetric", 0, 2, 5, 2, -2))
sketch9.addConstraint(Sketcher.Constraint("Symmetric", 3, 2, 7, 2, -2))
sketch9.addConstraint(Sketcher.Constraint("Symmetric", 2, 2, 8, 2, -2))
sketch9.addConstraint(Sketcher.Constraint("Perpendicular", 2, 3))
sketch9.addConstraint(Sketcher.Constraint("Perpendicular", 3, 4))
sketch9.addConstraint(Sketcher.Constraint("Perpendicular", 4, 7))
sketch9.addConstraint(Sketcher.Constraint("Perpendicular", 7, 8))
sketch9.addConstraint(Sketcher.Constraint("Perpendicular", 8, 9))
sketch9.addConstraint(Sketcher.Constraint("Perpendicular", 9, 12))
sketch9.addConstraint(Sketcher.Constraint("Perpendicular", 13, 14))
sketch9.addConstraint(Sketcher.Constraint("Perpendicular", 14, 17))
sketch9.addConstraint(Sketcher.Constraint("Perpendicular", 18, 19))
sketch9.addConstraint(Sketcher.Constraint("Equal", 16, 1))
sketch9.addConstraint(Sketcher.Constraint("Distance", 2, 5.0))
sketch9.addConstraint(Sketcher.Constraint("Distance", 3, 6.0))
sketch9.addConstraint(Sketcher.Constraint("DistanceX", 5, 2, 0, 2, 50.5))
sketch9.addConstraint(Sketcher.Constraint("DistanceY", 10, 2, 5, 2, 50.5))
pad4 = doc.addObject("PartDesign::Pad", "Pad003")
body4.addObject(pad4)
pad4.Profile = sketch9
pad4.Length = 10
mirroring.Visibility = False
mirroring2.Visibility = False

doc.recompute()
